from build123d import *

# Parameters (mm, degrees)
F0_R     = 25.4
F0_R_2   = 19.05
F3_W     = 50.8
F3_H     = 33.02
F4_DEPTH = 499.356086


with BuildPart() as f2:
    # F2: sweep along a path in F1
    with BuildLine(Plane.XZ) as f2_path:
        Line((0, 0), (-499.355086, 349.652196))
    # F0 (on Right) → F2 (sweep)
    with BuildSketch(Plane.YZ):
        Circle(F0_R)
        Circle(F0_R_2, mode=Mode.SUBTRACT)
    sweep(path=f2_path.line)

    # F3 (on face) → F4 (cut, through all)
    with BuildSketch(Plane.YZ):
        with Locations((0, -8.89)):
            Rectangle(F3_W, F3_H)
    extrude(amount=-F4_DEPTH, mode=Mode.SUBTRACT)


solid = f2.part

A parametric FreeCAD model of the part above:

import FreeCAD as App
import Part
import Sketcher

V = App.Vector
Q = App.Units.Quantity


def add_polygon(sketch, points):
    """Adds a closed chain of lines whose ends are joined by coincident constraints."""
    first, n = sketch.GeometryCount, len(points)
    for a, b in zip(points, points[1:] + points[:1]):
        sketch.addGeometry(Part.LineSegment(App.Vector(*a, 0), App.Vector(*b, 0)), False)
    for i in range(n):
        sketch.addConstraint(Sketcher.Constraint("Coincident", first + i, 2, first + (i + 1) % n, 1))

doc = App.newDocument("Part")
params = doc.addObject("Spreadsheet::Sheet", "Params")
for row, (alias, value) in enumerate([
    ("sketch1_diameter", "2 in"),
    ("sketch1_diameter2", "1.5 in"),
    ("sketch2_width", "24 in"),
    ("sketch3_width", "2 in"),
    ("sketch3_height", "1.3 in"),
], start=1):
    params.set(f"A{row}", alias)
    params.set(f"B{row}", "=" + value)
    params.setAlias(f"B{row}", alias)

body = doc.addObject("PartDesign::Body", "Body")

# Sketch on YZ plane
sketch1 = doc.addObject("Sketcher::SketchObject", "Sketch")
body.addObject(sketch1)
sketch1.AttachmentSupport = (doc.YZ_Plane, [""])
sketch1.MapMode = "FlatFace"
sketch1.addGeometry([
    Part.Circle(V(0, 0, 0), V(0, 0, 1), 25.4),
    Part.Circle(V(0, 0, 0), V(0, 0, 1), 19.05),
], False)
sketch1.addConstraint([
    Sketcher.Constraint("Coincident", 0, 3, -1, 1),
    Sketcher.Constraint("Coincident", 1, 3, -1, 1),
    Sketcher.Constraint("Diameter", 0, Q("2 in")),
    Sketcher.Constraint("Diameter", 1, Q("1.5 in")),
])
sketch1.setExpression("Constraints[2]", "Params.sketch1_diameter")
sketch1.setExpression("Constraints[3]", "Params.sketch1_diameter2")

# Sketch on an angled plane
sketch2 = doc.addObject("Sketcher::SketchObject", "Sketch001")
body.addObject(sketch2)
sketch2.Placement = App.Placement(V(0, 0, 0), App.Rotation(V(-0.819152044, 0, 0.573576437), V(0, 1, 0), V(-0.573576437, 0, -0.819152044), "ZXY"))
sketch2.addGeometry(Part.LineSegment(V(0, 0, 0), V(609.6, 0, 0)), False)
sketch2.addConstraint([
    Sketcher.Constraint("Horizontal", 0),
    Sketcher.Constraint("Coincident", 0, 1, -1, 1),
    Sketcher.Constraint("DistanceX", 0, 1, 0, 2, Q("24 in")),
])
sketch2.setExpression("Constraints[2]", "Params.sketch2_width")
doc.recompute()

additivepipe = doc.addObject("PartDesign::AdditivePipe", "AdditivePipe")
body.addObject(additivepipe)
additivepipe.Profile = sketch1
additivepipe.Spine = (sketch2, ["Edge1"])

# Sketch on YZ plane
sketch3 = doc.addObject("Sketcher::SketchObject", "Sketch002")
body.addObject(sketch3)
sketch3.AttachmentSupport = (doc.YZ_Plane, [""])
sketch3.MapMode = "FlatFace"
add_polygon(sketch3, [(-25.4, 7.62), (-25.4, -25.4), (25.4, -25.4), (25.4, 7.62)])  # lines 0-3
sketch3.addConstraint([
    Sketcher.Constraint("Vertical", 0),
    Sketcher.Constraint("Horizontal", 1),
    Sketcher.Constraint("Vertical", 2),
    Sketcher.Constraint("Horizontal", 3),
    Sketcher.Constraint("DistanceX", 1, 1, 1, 2, Q("2 in")),
    Sketcher.Constraint("DistanceY", 0, 2, 0, 1, Q("1.3 in")),
    Sketcher.Constraint("DistanceX", 0, 2, -1, 1, Q("1 in")),
    Sketcher.Constraint("DistanceY", 0, 2, -1, 1, Q("1 in")),
])
sketch3.setExpression("Constraints[8]", "Params.sketch3_width")
sketch3.setExpression("Constraints[9]", "Params.sketch3_height")
pocket1 = doc.addObject("PartDesign::Pocket", "Pocket")
body.addObject(pocket1)
pocket1.Profile = sketch3
pocket1.Type = "ThroughAll"

doc.recompute()
